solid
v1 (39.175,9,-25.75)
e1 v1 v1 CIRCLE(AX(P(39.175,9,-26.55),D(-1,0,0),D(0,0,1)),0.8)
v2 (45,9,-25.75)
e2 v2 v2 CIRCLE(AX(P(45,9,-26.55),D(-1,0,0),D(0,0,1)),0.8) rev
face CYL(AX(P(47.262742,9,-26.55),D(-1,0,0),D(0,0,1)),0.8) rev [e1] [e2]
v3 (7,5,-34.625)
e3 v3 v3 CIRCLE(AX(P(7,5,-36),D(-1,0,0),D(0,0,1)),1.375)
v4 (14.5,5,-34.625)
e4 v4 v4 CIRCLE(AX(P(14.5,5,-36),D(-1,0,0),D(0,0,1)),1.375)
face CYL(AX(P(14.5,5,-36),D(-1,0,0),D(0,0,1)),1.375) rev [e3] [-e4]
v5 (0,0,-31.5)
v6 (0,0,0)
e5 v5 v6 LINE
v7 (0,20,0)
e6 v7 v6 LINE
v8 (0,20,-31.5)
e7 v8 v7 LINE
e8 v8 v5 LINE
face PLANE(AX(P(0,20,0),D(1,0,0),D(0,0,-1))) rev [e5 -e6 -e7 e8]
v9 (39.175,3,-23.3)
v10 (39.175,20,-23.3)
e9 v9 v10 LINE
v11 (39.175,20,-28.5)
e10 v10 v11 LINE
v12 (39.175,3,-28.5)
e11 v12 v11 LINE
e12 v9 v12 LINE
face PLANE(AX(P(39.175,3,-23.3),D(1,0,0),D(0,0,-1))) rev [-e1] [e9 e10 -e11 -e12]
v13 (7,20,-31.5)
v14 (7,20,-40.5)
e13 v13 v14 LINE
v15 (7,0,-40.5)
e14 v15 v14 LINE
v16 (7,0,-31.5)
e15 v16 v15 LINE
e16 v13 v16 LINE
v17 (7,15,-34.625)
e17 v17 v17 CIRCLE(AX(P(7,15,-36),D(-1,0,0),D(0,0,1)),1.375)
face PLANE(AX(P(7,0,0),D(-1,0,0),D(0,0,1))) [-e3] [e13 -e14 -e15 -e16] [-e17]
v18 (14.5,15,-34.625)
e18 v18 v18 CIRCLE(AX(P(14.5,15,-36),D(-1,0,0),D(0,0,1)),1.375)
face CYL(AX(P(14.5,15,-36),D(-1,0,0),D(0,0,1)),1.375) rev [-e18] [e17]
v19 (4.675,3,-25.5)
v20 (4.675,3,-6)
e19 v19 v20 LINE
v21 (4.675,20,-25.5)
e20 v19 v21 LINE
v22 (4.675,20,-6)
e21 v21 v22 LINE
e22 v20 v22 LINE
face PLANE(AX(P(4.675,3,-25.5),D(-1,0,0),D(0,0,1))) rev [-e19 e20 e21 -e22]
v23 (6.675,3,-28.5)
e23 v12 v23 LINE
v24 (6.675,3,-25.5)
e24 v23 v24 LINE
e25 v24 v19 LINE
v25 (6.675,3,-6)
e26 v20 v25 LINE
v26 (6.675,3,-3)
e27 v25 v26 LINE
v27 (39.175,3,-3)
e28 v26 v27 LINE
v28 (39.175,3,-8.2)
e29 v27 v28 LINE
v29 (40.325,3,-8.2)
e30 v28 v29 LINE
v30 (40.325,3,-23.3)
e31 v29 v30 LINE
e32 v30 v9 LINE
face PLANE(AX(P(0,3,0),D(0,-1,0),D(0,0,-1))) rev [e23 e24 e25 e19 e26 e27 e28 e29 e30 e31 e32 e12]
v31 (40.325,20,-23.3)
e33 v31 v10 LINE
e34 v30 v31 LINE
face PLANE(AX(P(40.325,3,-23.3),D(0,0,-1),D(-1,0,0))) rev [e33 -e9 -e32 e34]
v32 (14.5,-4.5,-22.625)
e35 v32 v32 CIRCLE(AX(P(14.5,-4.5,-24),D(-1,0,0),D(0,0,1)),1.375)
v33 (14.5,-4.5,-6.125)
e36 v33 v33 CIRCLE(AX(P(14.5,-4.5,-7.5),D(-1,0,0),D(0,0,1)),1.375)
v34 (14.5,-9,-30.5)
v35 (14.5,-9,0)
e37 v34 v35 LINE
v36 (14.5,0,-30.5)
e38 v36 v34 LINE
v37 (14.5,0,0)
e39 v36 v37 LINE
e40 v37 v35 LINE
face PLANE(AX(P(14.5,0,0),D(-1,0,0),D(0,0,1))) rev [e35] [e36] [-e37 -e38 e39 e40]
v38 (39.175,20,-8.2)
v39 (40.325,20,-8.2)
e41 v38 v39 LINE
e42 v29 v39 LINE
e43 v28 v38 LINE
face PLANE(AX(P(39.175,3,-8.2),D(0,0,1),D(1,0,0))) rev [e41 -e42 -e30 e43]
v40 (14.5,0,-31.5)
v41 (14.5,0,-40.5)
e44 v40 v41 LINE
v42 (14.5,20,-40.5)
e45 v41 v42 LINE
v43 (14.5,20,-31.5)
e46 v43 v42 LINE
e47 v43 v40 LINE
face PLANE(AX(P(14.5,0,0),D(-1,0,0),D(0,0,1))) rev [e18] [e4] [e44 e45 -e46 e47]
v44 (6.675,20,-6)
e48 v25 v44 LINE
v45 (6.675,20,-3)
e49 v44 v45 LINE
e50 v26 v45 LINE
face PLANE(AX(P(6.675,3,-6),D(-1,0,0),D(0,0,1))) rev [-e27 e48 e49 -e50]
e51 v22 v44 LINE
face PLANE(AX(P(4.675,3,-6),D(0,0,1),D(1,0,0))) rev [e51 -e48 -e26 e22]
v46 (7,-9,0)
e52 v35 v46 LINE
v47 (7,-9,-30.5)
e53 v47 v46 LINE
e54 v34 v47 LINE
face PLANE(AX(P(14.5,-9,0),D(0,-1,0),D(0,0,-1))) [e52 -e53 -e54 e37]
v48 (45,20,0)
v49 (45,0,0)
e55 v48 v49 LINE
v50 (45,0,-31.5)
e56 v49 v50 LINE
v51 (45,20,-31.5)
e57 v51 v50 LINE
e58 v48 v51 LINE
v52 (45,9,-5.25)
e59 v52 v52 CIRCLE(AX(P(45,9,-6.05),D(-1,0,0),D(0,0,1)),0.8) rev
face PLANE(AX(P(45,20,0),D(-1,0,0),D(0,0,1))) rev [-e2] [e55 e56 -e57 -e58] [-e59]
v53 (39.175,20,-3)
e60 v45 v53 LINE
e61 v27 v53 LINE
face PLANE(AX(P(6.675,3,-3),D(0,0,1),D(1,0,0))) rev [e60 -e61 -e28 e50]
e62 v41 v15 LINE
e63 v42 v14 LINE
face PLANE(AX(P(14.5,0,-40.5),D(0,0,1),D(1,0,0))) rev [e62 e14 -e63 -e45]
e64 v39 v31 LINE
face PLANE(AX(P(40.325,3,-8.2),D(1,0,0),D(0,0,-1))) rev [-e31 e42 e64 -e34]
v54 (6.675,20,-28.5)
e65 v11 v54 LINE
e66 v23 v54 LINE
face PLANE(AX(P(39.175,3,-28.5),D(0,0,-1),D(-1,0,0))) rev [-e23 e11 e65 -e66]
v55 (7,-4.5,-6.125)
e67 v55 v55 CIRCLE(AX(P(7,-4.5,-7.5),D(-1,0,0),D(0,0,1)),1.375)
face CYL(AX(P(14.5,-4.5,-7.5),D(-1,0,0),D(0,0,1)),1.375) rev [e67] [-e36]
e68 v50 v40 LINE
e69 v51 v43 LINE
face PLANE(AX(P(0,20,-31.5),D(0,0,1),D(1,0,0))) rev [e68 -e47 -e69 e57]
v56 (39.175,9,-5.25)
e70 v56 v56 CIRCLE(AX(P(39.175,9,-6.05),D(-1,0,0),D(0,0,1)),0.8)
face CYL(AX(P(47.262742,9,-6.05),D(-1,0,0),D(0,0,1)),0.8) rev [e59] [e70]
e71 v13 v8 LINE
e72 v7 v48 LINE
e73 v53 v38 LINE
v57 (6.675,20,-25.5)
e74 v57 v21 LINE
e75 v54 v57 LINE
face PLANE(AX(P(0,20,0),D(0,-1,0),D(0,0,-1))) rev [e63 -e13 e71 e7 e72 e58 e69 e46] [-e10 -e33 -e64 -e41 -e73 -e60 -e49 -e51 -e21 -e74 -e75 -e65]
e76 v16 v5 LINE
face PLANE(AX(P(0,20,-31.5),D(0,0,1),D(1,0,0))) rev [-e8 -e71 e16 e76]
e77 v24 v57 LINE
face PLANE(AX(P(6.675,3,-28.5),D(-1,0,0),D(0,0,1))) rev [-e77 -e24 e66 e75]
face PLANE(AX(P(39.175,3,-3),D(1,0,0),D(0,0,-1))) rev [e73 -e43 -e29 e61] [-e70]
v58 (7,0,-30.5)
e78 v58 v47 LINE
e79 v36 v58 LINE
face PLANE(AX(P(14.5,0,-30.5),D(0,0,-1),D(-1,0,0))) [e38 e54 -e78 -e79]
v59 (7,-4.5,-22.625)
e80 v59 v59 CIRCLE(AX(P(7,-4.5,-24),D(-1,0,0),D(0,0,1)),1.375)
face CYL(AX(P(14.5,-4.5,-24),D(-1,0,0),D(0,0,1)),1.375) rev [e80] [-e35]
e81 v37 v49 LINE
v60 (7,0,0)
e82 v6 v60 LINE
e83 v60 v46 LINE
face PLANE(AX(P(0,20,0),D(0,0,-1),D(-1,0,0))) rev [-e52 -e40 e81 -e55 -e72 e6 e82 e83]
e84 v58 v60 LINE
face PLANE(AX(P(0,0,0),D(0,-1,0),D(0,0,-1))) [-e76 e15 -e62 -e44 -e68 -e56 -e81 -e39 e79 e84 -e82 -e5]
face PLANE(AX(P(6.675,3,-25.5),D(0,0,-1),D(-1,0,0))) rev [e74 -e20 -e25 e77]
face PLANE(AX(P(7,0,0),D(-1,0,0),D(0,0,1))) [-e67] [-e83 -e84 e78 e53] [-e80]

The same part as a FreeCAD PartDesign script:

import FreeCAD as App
import Part
import Sketcher
from FreeCAD import Vector


def add_polygon(sketch, points):
    """Adds a closed chain of lines whose ends are joined by coincident constraints."""
    first, n = sketch.GeometryCount, len(points)
    for a, b in zip(points, points[1:] + points[:1]):
        sketch.addGeometry(Part.LineSegment(App.Vector(*a, 0), App.Vector(*b, 0)), False)
    for i in range(n):
        sketch.addConstraint(Sketcher.Constraint("Coincident", first + i, 2, first + (i + 1) % n, 1))

doc = App.newDocument("Part")
body = doc.addObject("PartDesign::Body", "Body")

sketch1 = body.newObject("Sketcher::SketchObject", "Sketch")
sketch1.AttachmentSupport = (doc.getObject("XZ_Plane"), [""])
sketch1.MapMode = "FlatFace"
add_polygon(sketch1, [(0, -32), (0, 0), (45, 0), (45, -32)])
sketch1.addConstraint([
    Sketcher.Constraint("Vertical", 0),
    Sketcher.Constraint("Horizontal", 1),
    Sketcher.Constraint("Vertical", 2),
    Sketcher.Constraint("Horizontal", 3),
    Sketcher.Constraint("Coincident", 0, 2, -1, 1),
    Sketcher.Constraint("DistanceX", 1, 1, 1, 2, 45.0),
    Sketcher.Constraint("DistanceY", 0, 1, 0, 2, 31.5),
])
pad1 = body.newObject("PartDesign::Pad", "Pad")
pad1.Profile = sketch1
pad1.Length = 20
pad1.Reversed = True

sketch2 = body.newObject("Sketcher::SketchObject", "Sketch001")
sketch2.AttachmentSupport = (doc.getObject("XZ_Plane"), [""])
sketch2.MapMode = "FlatFace"
sketch2.AttachmentOffset = App.Placement(Vector(0, 0, -20), App.Rotation())
add_polygon(sketch2, [(39.2, -28.5), (6.7, -28.5), (6.7, -25.5), (4.7, -25.5), (4.7, -6), (6.7, -6), (6.7, -3), (39.2, -3), (39.2, -8.2), (40.3, -8.2), (40.3, -23.3), (39.2, -23.3)])
sketch2.addConstraint([
    Sketcher.Constraint("Horizontal", 0),
    Sketcher.Constraint("Vertical", 1),
    Sketcher.Constraint("Horizontal", 2),
    Sketcher.Constraint("Vertical", 3),
    Sketcher.Constraint("Horizontal", 4),
    Sketcher.Constraint("Vertical", 5),
    Sketcher.Constraint("Horizontal", 6),
    Sketcher.Constraint("Vertical", 7),
    Sketcher.Constraint("Horizontal", 8),
    Sketcher.Constraint("Vertical", 9),
    Sketcher.Constraint("Horizontal", 10),
    Sketcher.Constraint("Vertical", 11),
    Sketcher.Constraint("Vertical", 1, 2, 4, 2),
    Sketcher.Constraint("Vertical", 7, 2, 10, 2),
    Sketcher.Constraint("Equal", 1, 5),
    Sketcher.Constraint("Equal", 7, 11),
    Sketcher.Constraint("DistanceX", 2, 2, 2, 1, 2.0),
    Sketcher.Constraint("DistanceY", 1, 1, 1, 2, 3.0),
    Sketcher.Constraint("DistanceX", 0, 2, 0, 1, 32.5),
    Sketcher.Constraint("DistanceY", 3, 1, 3, 2, 19.5),
    Sketcher.Constraint("DistanceY", 7, 2, 7, 1, 5.2),
    Sketcher.Constraint("DistanceY", 3, 2, -1, 1, 6.0),
    Sketcher.Constraint("DistanceX", 8, 1, 8, 2, 1.15),
    Sketcher.Constraint("DistanceX", -1, 1, 0, 2, 6.675),
])
pocket1 = body.newObject("PartDesign::Pocket", "Pocket")
pocket1.Profile = sketch2
pocket1.Length = 17
pocket1.Reversed = True

sketch3 = body.newObject("Sketcher::SketchObject", "Sketch002")
sketch3.AttachmentSupport = (doc.getObject("YZ_Plane"), [""])
sketch3.MapMode = "FlatFace"
sketch3.AttachmentOffset = App.Placement(Vector(0, 0, 39.175), App.Rotation())
sketch3.addGeometry([
    Part.Circle(Vector(9, -26.6, 0), Vector(0, 0, 1), 0.8),
    Part.Circle(Vector(9, -6, 0), Vector(0, 0, 1), 0.8),
], False)
sketch3.addConstraint([
    Sketcher.Constraint("Equal", 0, 1),
    Sketcher.Constraint("Vertical", 0, 3, 1, 3),
    Sketcher.Constraint("Diameter", 0, 1.6),
    Sketcher.Constraint("DistanceX", -1, 1, 0, 3, 9.0),
    Sketcher.Constraint("DistanceY", 0, 3, 1, 3, 20.5),
    Sketcher.Constraint("DistanceY", 0, 3, -1, 1, 26.55),
])
pocket2 = body.newObject("PartDesign::Pocket", "Pocket001")
pocket2.Profile = sketch3
pocket2.Length = 5.825
pocket2.Reversed = True

sketch4 = body.newObject("Sketcher::SketchObject", "Sketch003")
sketch4.AttachmentSupport = (doc.getObject("YZ_Plane"), [""])
sketch4.MapMode = "FlatFace"
sketch4.AttachmentOffset = App.Placement(Vector(0, 0, 7), App.Rotation())
add_polygon(sketch4, [(0, -30.5), (-9, -30.5), (-9, 0), (0, 0)])
sketch4.addGeometry(Part.Circle(Vector(-4.5, -24, 0), Vector(0, 0, 1), 1.4), False)
sketch4.addGeometry(Part.Circle(Vector(-4.5, -7.5, 0), Vector(0, 0, 1), 1.4), False)
add_polygon(sketch4, [(20, -40.5), (0, -40.5), (0, -31.5), (20, -31.5)])
sketch4.addGeometry(Part.Circle(Vector(5, -36, 0), Vector(0, 0, 1), 1.4), False)
sketch4.addGeometry(Part.Circle(Vector(15, -36, 0), Vector(0, 0, 1), 1.4), False)
sketch4.addConstraint([
    Sketcher.Constraint("Horizontal", 0),
    Sketcher.Constraint("Vertical", 1),
    Sketcher.Constraint("Horizontal", 2),
    Sketcher.Constraint("Vertical", 3),
    Sketcher.Constraint("Horizontal", 6),
    Sketcher.Constraint("Vertical", 7),
    Sketcher.Constraint("Horizontal", 8),
    Sketcher.Constraint("Vertical", 9),
    Sketcher.Constraint("Coincident", 2, 2, -1, 1),
    Sketcher.Constraint("Equal", 4, 5),
    Sketcher.Constraint("Equal", 5, 10),
    Sketcher.Constraint("Equal", 10, 11),
    Sketcher.Constraint("PointOnObject", 6, 2, -2),
    Sketcher.Constraint("Horizontal", 10, 3, 11, 3),
    Sketcher.Constraint("Vertical", 4, 3, 5, 3),
    Sketcher.Constraint("Equal", 2, 7),
    Sketcher.Constraint("Diameter", 4, 2.75),
    Sketcher.Constraint("DistanceX", 0, 2, 0, 1, 9.0),
    Sketcher.Constraint("DistanceX", 6, 2, 6, 1, 20.0),
    Sketcher.Constraint("DistanceY", 1, 1, 1, 2, 30.5),
    Sketcher.Constraint("DistanceY", 4, 3, -1, 1, 24.0),
    Sketcher.Constraint("DistanceX", -1, 1, 10, 3, 5.0),
    Sketcher.Constraint("DistanceY", 10, 3, -1, 1, 36.0),
    Sketcher.Constraint("DistanceX", -1, 1, 11, 3, 15.0),
    Sketcher.Constraint("DistanceY", 0, 2, 5, 3, 23.0),
    Sketcher.Constraint("DistanceY", 6, 2, 3, 2, 10.0),
    Sketcher.Constraint("DistanceX", 4, 3, -1, 1, 4.5),
])
pad2 = body.newObject("PartDesign::Pad", "Pad001")
pad2.Profile = sketch4
pad2.Length = 7.5

doc.recompute()
